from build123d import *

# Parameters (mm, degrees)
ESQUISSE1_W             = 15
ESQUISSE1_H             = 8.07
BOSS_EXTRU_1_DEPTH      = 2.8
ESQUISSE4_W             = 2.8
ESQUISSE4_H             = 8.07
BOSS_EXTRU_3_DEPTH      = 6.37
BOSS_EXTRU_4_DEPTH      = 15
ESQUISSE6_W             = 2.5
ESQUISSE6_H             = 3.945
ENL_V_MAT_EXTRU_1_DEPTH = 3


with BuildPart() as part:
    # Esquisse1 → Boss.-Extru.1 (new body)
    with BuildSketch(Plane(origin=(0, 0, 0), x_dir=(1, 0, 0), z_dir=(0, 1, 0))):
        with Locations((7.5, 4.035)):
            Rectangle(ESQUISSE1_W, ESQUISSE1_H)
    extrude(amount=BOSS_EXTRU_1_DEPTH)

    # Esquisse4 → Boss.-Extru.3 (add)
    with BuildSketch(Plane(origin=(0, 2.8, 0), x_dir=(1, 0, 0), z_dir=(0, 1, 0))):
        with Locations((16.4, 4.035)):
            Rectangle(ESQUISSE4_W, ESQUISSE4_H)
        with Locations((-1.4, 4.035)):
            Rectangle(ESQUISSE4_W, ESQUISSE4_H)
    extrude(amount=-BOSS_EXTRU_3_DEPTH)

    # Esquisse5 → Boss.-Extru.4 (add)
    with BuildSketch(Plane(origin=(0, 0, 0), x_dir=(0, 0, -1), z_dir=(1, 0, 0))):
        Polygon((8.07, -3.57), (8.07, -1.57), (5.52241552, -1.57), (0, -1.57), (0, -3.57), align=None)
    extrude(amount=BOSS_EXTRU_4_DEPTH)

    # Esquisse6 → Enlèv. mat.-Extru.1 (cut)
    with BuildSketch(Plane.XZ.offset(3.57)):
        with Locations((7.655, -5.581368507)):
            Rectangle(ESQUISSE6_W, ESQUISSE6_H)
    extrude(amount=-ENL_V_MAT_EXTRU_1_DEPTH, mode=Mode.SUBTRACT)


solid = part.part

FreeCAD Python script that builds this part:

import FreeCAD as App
import Part
import Sketcher
from FreeCAD import Vector


def add_polygon(sketch, points):
    """Adds a closed chain of lines whose ends are joined by coincident constraints."""
    first, n = sketch.GeometryCount, len(points)
    for a, b in zip(points, points[1:] + points[:1]):
        sketch.addGeometry(Part.LineSegment(App.Vector(*a, 0), App.Vector(*b, 0)), False)
    for i in range(n):
        sketch.addConstraint(Sketcher.Constraint("Coincident", first + i, 2, first + (i + 1) % n, 1))

doc = App.newDocument("Part")
body = doc.addObject("PartDesign::Body", "Body")

# Sketch on XZ plane
sketch1 = body.newObject("Sketcher::SketchObject", "Sketch")
sketch1.AttachmentSupport = (doc.getObject("XZ_Plane"), [""])
sketch1.MapMode = "FlatFace"
add_polygon(sketch1, [(0, -8), (0, 0), (15, 0), (15, -8)])  # lines 0-3
sketch1.addConstraint([
    Sketcher.Constraint("Vertical", 0),
    Sketcher.Constraint("Horizontal", 1),
    Sketcher.Constraint("Vertical", 2),
    Sketcher.Constraint("Horizontal", 3),
    Sketcher.Constraint("Coincident", 0, 2, -1, 1),
    Sketcher.Constraint("DistanceX", 1, 1, 1, 2, 15.0),
    Sketcher.Constraint("DistanceY", 0, 1, 0, 2, 8.07),
])
pad1 = body.newObject("PartDesign::Pad", "Pad")
pad1.Profile = sketch1
pad1.Length = 2.8
pad1.Reversed = True

# Sketch on XZ plane
sketch2 = body.newObject("Sketcher::SketchObject", "Sketch001")
sketch2.AttachmentSupport = (doc.getObject("XZ_Plane"), [""])
sketch2.MapMode = "FlatFace"
sketch2.AttachmentOffset = App.Placement(Vector(0, 0, -2.8), App.Rotation())
add_polygon(sketch2, [(15, -8.1), (15, 0), (17.8, 0), (17.8, -8.1)])  # lines 0-3
add_polygon(sketch2, [(-2.8, -8.1), (-2.8, 0), (0, 0), (0, -8.1)])  # lines 4-7
sketch2.addConstraint([
    Sketcher.Constraint("Vertical", 0),
    Sketcher.Constraint("Horizontal", 1),
    Sketcher.Constraint("Vertical", 2),
    Sketcher.Constraint("Horizontal", 3),
    Sketcher.Constraint("Vertical", 4),
    Sketcher.Constraint("Horizontal", 5),
    Sketcher.Constraint("Vertical", 6),
    Sketcher.Constraint("Horizontal", 7),
    Sketcher.Constraint("Coincident", 5, 2, -1, 1),
    Sketcher.Constraint("PointOnObject", 0, 2, -1),
    Sketcher.Constraint("Horizontal", 3, 2, 6, 2),
    Sketcher.Constraint("Equal", 3, 5),
    Sketcher.Constraint("DistanceX", 1, 1, 1, 2, 2.8),
    Sketcher.Constraint("DistanceX", -1, 1, 0, 2, 15.0),
    Sketcher.Constraint("DistanceY", 0, 1, 0, 2, 8.07),
])
pad2 = body.newObject("PartDesign::Pad", "Pad001")
pad2.Profile = sketch2
pad2.Length = 6.37

# Sketch on YZ plane
sketch3 = body.newObject("Sketcher::SketchObject", "Sketch002")
sketch3.AttachmentSupport = (doc.getObject("YZ_Plane"), [""])
sketch3.MapMode = "FlatFace"
add_polygon(sketch3, [(-3.6, -8.1), (-1.6, -8.1), (-1.6, 0), (-3.6, 0)])  # lines 0-3
sketch3.addConstraint([
    Sketcher.Constraint("Horizontal", 0),
    Sketcher.Constraint("Vertical", 1),
    Sketcher.Constraint("Horizontal", 2),
    Sketcher.Constraint("Vertical", 3),
    Sketcher.Constraint("PointOnObject", 1, 2, -1),
    Sketcher.Constraint("DistanceX", 0, 1, 0, 2, 2.0),
    Sketcher.Constraint("DistanceY", 1, 1, 1, 2, 8.07),
    Sketcher.Constraint("DistanceX", 0, 2, -1, 1, 1.57),
])
pad3 = body.newObject("PartDesign::Pad", "Pad002")
pad3.Profile = sketch3
pad3.Length = 15

# Sketch on XZ plane
sketch4 = body.newObject("Sketcher::SketchObject", "Sketch003")
sketch4.AttachmentSupport = (doc.getObject("XZ_Plane"), [""])
sketch4.MapMode = "FlatFace"
sketch4.AttachmentOffset = App.Placement(Vector(0, 0, 3.57), App.Rotation())
add_polygon(sketch4, [(6.4, -3.6), (6.4, -7.6), (8.9, -7.6), (8.9, -3.6)])  # lines 0-3
sketch4.addConstraint([
    Sketcher.Constraint("Vertical", 0),
    Sketcher.Constraint("Horizontal", 1),
    Sketcher.Constraint("Vertical", 2),
    Sketcher.Constraint("Horizontal", 3),
    Sketcher.Constraint("DistanceX", 1, 1, 1, 2, 2.5),
    Sketcher.Constraint("DistanceY", 0, 2, 0, 1, 3.945),
    Sketcher.Constraint("DistanceX", -1, 1, 0, 2, 6.405),
    Sketcher.Constraint("DistanceY", 0, 2, -1, 1, 7.553869),
])
pocket1 = body.newObject("PartDesign::Pocket", "Pocket")
pocket1.Profile = sketch4
pocket1.Length = 3

doc.recompute()
